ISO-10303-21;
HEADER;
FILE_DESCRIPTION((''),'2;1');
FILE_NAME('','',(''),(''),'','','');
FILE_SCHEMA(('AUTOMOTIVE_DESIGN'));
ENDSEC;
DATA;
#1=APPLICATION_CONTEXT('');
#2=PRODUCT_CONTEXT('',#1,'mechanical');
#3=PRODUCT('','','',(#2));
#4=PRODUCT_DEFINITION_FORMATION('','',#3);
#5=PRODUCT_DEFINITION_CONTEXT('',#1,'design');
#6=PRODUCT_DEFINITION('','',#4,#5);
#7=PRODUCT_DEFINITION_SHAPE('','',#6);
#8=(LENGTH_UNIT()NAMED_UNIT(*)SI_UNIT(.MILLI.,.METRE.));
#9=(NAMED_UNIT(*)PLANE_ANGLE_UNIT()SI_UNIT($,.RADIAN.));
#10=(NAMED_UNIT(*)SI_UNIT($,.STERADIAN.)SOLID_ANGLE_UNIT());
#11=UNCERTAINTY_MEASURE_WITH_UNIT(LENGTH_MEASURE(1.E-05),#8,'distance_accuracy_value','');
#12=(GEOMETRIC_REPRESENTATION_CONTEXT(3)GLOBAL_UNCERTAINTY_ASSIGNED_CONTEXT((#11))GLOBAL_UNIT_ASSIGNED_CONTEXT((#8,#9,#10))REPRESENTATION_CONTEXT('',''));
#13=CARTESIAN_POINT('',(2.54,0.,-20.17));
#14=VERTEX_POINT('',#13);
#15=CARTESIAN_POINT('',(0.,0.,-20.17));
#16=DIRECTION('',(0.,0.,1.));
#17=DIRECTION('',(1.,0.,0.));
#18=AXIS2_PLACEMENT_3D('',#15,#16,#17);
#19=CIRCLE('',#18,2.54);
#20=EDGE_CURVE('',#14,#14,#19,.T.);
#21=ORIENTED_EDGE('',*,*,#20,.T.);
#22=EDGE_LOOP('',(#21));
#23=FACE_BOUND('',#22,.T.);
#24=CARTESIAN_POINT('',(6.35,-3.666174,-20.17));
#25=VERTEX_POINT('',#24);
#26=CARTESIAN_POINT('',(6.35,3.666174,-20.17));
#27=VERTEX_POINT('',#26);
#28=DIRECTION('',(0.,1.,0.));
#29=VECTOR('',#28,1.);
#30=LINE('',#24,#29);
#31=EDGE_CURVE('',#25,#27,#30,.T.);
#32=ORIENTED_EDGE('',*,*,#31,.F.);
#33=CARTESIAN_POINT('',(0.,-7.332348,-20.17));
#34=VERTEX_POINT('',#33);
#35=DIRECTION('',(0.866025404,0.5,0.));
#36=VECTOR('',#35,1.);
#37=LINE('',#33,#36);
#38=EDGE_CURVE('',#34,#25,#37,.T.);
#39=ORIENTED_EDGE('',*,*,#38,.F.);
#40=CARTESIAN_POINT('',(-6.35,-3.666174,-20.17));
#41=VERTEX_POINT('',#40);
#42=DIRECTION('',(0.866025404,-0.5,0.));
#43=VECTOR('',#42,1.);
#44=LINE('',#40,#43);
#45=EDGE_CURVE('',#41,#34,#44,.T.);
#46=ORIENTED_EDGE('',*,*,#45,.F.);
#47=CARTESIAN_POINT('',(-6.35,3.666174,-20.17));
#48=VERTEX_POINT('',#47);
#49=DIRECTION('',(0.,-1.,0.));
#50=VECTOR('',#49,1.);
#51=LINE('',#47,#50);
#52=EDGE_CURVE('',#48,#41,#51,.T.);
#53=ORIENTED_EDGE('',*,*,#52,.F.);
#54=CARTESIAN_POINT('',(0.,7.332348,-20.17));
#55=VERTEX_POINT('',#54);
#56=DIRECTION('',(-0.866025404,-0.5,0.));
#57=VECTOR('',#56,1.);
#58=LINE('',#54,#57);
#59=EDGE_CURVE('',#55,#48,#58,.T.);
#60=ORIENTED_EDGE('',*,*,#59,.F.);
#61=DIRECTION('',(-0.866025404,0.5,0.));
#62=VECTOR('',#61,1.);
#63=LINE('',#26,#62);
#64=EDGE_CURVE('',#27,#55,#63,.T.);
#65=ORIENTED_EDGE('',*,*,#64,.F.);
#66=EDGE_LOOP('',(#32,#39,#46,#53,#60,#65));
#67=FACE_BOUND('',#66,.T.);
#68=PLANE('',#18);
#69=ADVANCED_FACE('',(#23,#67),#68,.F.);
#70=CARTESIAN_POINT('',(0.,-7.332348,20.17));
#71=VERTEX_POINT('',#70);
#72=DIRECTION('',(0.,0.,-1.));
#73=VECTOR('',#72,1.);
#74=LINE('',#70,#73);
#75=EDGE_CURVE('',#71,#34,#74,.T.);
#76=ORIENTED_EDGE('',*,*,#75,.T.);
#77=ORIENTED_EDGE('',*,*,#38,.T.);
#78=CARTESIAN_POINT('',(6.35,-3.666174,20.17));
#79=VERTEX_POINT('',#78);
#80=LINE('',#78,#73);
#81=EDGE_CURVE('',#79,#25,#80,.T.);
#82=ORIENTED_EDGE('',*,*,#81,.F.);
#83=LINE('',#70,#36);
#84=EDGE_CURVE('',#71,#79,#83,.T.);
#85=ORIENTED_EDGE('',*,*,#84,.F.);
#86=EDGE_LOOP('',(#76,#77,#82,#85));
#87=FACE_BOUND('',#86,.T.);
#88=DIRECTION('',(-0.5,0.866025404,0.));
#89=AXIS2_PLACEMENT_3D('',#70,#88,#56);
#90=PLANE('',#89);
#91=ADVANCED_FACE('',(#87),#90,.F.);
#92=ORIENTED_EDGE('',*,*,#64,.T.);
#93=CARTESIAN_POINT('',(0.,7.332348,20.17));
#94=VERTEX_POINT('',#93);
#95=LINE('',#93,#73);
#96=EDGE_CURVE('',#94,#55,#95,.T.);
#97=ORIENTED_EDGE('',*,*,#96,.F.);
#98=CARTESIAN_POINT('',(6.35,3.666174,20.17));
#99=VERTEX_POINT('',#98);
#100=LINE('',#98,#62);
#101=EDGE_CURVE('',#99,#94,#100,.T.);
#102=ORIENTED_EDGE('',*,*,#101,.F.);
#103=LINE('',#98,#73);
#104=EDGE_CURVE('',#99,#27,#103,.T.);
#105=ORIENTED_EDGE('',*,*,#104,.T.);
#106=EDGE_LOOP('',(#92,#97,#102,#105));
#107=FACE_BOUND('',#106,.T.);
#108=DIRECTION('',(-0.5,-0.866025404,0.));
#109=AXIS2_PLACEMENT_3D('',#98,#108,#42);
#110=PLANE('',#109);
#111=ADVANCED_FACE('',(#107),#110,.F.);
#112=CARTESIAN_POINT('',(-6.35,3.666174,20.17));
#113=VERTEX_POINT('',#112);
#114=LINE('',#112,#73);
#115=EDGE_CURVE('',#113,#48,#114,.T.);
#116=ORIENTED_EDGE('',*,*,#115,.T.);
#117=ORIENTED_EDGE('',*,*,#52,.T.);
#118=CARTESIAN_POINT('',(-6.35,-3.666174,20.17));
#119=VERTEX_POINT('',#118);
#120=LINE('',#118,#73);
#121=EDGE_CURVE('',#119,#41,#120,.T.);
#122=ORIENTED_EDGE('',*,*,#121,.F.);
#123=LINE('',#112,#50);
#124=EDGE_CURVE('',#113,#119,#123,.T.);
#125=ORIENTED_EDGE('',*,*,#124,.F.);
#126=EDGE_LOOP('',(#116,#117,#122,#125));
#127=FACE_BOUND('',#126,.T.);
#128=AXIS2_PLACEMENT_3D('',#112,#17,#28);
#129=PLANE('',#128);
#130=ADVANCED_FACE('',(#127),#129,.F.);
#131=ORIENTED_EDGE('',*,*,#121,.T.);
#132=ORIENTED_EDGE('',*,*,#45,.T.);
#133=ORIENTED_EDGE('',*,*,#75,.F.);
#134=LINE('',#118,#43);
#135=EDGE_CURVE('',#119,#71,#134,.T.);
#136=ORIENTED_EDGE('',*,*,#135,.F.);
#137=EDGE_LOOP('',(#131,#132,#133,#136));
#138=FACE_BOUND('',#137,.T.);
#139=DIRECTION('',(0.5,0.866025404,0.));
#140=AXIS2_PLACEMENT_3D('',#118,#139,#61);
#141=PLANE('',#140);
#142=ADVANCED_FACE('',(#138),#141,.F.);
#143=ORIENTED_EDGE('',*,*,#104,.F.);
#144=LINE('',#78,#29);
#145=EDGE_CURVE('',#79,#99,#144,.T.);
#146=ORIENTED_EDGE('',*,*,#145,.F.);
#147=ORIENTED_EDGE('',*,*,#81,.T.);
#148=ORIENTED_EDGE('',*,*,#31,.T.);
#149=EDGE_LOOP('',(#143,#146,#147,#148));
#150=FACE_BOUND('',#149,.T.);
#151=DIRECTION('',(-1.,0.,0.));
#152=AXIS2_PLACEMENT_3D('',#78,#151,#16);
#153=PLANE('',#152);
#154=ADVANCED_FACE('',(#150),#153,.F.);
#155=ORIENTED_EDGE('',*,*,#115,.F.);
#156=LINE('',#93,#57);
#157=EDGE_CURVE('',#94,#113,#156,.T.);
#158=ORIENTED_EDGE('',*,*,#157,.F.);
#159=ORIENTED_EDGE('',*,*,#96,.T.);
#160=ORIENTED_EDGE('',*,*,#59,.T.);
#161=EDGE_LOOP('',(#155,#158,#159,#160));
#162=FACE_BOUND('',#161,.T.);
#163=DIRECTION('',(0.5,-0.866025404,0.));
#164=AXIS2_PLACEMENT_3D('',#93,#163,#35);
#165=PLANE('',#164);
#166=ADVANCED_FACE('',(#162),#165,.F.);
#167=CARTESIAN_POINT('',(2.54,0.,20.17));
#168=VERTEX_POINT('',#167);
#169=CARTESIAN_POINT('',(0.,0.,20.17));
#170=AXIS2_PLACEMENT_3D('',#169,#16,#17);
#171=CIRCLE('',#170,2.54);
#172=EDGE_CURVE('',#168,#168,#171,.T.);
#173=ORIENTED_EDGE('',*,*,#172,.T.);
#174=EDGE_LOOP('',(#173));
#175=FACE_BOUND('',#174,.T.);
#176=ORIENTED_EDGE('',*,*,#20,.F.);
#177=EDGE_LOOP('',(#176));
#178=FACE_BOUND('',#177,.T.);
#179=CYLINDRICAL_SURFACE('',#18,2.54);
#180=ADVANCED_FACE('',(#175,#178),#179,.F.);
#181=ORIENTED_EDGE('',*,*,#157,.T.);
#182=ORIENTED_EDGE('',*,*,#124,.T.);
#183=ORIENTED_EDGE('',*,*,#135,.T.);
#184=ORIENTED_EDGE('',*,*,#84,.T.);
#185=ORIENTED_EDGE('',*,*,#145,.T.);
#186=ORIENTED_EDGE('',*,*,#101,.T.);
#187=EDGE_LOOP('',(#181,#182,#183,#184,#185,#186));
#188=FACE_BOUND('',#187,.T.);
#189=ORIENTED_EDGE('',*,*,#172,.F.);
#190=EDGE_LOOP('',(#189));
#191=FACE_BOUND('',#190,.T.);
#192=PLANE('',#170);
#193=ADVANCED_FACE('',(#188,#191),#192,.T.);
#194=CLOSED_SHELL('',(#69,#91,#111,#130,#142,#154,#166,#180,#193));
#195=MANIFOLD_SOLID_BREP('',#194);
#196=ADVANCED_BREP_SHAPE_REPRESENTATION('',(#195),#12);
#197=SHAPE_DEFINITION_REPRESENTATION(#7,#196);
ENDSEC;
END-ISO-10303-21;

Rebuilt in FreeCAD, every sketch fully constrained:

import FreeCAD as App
import Part
import Sketcher
from FreeCAD import Vector
Q = App.Units.Quantity


def add_polygon(sketch, points):
    """Adds a closed chain of lines whose ends are joined by coincident constraints."""
    first, n = sketch.GeometryCount, len(points)
    for a, b in zip(points, points[1:] + points[:1]):
        sketch.addGeometry(Part.LineSegment(App.Vector(*a, 0), App.Vector(*b, 0)), False)
    for i in range(n):
        sketch.addConstraint(Sketcher.Constraint("Coincident", first + i, 2, first + (i + 1) % n, 1))

doc = App.newDocument("Part")
body = doc.addObject("PartDesign::Body", "Body")

# Sketch on XY plane
sketch1 = body.newObject("Sketcher::SketchObject", "Sketch")
sketch1.AttachmentSupport = (doc.getObject("XY_Plane"), [""])
sketch1.MapMode = "FlatFace"
add_polygon(sketch1, [(6, 4), (0, 7), (-6, 4), (-6, -4), (0, -7), (6, -4)])  # lines 0-5
sketch1.addConstraint([
    Sketcher.Constraint("Vertical", 2),
    Sketcher.Constraint("Vertical", 5),
    Sketcher.Constraint("Symmetric", 0, 2, 3, 2, -1, 1),
    Sketcher.Constraint("Symmetric", 1, 2, 4, 2, -1, 1),
    Sketcher.Constraint("PointOnObject", 0, 2, -2),
    Sketcher.Constraint("Parallel", 0, 3),
    Sketcher.Constraint("Horizontal", 2, 2, 4, 2),
    Sketcher.Constraint("Angle", 0, Q("150 deg")),
    Sketcher.Constraint("DistanceX", 2, 2, 4, 2, Q("0.5 in")),
    Sketcher.Constraint("DistanceY", 2, 2, 2, 1, 7.332348),
])
pad1 = body.newObject("PartDesign::Pad", "Pad")
pad1.Profile = sketch1
pad1.Length = 40.34
pad1.Midplane = True

# Sketch on XY plane
sketch2 = body.newObject("Sketcher::SketchObject", "Sketch001")
sketch2.AttachmentSupport = (doc.getObject("XY_Plane"), [""])
sketch2.MapMode = "FlatFace"
sketch2.AttachmentOffset = App.Placement(Vector(0, 0, 20.17), App.Rotation())
sketch2.addGeometry(Part.Circle(Vector(0, 0, 0), Vector(0, 0, 1), 2.5), False)
sketch2.addConstraint([
    Sketcher.Constraint("Coincident", 0, 3, -1, 1),
    Sketcher.Constraint("Diameter", 0, Q("0.2 in")),
])
pocket1 = body.newObject("PartDesign::Pocket", "Pocket")
pocket1.Profile = sketch2
pocket1.Type = "ThroughAll"

doc.recompute()
